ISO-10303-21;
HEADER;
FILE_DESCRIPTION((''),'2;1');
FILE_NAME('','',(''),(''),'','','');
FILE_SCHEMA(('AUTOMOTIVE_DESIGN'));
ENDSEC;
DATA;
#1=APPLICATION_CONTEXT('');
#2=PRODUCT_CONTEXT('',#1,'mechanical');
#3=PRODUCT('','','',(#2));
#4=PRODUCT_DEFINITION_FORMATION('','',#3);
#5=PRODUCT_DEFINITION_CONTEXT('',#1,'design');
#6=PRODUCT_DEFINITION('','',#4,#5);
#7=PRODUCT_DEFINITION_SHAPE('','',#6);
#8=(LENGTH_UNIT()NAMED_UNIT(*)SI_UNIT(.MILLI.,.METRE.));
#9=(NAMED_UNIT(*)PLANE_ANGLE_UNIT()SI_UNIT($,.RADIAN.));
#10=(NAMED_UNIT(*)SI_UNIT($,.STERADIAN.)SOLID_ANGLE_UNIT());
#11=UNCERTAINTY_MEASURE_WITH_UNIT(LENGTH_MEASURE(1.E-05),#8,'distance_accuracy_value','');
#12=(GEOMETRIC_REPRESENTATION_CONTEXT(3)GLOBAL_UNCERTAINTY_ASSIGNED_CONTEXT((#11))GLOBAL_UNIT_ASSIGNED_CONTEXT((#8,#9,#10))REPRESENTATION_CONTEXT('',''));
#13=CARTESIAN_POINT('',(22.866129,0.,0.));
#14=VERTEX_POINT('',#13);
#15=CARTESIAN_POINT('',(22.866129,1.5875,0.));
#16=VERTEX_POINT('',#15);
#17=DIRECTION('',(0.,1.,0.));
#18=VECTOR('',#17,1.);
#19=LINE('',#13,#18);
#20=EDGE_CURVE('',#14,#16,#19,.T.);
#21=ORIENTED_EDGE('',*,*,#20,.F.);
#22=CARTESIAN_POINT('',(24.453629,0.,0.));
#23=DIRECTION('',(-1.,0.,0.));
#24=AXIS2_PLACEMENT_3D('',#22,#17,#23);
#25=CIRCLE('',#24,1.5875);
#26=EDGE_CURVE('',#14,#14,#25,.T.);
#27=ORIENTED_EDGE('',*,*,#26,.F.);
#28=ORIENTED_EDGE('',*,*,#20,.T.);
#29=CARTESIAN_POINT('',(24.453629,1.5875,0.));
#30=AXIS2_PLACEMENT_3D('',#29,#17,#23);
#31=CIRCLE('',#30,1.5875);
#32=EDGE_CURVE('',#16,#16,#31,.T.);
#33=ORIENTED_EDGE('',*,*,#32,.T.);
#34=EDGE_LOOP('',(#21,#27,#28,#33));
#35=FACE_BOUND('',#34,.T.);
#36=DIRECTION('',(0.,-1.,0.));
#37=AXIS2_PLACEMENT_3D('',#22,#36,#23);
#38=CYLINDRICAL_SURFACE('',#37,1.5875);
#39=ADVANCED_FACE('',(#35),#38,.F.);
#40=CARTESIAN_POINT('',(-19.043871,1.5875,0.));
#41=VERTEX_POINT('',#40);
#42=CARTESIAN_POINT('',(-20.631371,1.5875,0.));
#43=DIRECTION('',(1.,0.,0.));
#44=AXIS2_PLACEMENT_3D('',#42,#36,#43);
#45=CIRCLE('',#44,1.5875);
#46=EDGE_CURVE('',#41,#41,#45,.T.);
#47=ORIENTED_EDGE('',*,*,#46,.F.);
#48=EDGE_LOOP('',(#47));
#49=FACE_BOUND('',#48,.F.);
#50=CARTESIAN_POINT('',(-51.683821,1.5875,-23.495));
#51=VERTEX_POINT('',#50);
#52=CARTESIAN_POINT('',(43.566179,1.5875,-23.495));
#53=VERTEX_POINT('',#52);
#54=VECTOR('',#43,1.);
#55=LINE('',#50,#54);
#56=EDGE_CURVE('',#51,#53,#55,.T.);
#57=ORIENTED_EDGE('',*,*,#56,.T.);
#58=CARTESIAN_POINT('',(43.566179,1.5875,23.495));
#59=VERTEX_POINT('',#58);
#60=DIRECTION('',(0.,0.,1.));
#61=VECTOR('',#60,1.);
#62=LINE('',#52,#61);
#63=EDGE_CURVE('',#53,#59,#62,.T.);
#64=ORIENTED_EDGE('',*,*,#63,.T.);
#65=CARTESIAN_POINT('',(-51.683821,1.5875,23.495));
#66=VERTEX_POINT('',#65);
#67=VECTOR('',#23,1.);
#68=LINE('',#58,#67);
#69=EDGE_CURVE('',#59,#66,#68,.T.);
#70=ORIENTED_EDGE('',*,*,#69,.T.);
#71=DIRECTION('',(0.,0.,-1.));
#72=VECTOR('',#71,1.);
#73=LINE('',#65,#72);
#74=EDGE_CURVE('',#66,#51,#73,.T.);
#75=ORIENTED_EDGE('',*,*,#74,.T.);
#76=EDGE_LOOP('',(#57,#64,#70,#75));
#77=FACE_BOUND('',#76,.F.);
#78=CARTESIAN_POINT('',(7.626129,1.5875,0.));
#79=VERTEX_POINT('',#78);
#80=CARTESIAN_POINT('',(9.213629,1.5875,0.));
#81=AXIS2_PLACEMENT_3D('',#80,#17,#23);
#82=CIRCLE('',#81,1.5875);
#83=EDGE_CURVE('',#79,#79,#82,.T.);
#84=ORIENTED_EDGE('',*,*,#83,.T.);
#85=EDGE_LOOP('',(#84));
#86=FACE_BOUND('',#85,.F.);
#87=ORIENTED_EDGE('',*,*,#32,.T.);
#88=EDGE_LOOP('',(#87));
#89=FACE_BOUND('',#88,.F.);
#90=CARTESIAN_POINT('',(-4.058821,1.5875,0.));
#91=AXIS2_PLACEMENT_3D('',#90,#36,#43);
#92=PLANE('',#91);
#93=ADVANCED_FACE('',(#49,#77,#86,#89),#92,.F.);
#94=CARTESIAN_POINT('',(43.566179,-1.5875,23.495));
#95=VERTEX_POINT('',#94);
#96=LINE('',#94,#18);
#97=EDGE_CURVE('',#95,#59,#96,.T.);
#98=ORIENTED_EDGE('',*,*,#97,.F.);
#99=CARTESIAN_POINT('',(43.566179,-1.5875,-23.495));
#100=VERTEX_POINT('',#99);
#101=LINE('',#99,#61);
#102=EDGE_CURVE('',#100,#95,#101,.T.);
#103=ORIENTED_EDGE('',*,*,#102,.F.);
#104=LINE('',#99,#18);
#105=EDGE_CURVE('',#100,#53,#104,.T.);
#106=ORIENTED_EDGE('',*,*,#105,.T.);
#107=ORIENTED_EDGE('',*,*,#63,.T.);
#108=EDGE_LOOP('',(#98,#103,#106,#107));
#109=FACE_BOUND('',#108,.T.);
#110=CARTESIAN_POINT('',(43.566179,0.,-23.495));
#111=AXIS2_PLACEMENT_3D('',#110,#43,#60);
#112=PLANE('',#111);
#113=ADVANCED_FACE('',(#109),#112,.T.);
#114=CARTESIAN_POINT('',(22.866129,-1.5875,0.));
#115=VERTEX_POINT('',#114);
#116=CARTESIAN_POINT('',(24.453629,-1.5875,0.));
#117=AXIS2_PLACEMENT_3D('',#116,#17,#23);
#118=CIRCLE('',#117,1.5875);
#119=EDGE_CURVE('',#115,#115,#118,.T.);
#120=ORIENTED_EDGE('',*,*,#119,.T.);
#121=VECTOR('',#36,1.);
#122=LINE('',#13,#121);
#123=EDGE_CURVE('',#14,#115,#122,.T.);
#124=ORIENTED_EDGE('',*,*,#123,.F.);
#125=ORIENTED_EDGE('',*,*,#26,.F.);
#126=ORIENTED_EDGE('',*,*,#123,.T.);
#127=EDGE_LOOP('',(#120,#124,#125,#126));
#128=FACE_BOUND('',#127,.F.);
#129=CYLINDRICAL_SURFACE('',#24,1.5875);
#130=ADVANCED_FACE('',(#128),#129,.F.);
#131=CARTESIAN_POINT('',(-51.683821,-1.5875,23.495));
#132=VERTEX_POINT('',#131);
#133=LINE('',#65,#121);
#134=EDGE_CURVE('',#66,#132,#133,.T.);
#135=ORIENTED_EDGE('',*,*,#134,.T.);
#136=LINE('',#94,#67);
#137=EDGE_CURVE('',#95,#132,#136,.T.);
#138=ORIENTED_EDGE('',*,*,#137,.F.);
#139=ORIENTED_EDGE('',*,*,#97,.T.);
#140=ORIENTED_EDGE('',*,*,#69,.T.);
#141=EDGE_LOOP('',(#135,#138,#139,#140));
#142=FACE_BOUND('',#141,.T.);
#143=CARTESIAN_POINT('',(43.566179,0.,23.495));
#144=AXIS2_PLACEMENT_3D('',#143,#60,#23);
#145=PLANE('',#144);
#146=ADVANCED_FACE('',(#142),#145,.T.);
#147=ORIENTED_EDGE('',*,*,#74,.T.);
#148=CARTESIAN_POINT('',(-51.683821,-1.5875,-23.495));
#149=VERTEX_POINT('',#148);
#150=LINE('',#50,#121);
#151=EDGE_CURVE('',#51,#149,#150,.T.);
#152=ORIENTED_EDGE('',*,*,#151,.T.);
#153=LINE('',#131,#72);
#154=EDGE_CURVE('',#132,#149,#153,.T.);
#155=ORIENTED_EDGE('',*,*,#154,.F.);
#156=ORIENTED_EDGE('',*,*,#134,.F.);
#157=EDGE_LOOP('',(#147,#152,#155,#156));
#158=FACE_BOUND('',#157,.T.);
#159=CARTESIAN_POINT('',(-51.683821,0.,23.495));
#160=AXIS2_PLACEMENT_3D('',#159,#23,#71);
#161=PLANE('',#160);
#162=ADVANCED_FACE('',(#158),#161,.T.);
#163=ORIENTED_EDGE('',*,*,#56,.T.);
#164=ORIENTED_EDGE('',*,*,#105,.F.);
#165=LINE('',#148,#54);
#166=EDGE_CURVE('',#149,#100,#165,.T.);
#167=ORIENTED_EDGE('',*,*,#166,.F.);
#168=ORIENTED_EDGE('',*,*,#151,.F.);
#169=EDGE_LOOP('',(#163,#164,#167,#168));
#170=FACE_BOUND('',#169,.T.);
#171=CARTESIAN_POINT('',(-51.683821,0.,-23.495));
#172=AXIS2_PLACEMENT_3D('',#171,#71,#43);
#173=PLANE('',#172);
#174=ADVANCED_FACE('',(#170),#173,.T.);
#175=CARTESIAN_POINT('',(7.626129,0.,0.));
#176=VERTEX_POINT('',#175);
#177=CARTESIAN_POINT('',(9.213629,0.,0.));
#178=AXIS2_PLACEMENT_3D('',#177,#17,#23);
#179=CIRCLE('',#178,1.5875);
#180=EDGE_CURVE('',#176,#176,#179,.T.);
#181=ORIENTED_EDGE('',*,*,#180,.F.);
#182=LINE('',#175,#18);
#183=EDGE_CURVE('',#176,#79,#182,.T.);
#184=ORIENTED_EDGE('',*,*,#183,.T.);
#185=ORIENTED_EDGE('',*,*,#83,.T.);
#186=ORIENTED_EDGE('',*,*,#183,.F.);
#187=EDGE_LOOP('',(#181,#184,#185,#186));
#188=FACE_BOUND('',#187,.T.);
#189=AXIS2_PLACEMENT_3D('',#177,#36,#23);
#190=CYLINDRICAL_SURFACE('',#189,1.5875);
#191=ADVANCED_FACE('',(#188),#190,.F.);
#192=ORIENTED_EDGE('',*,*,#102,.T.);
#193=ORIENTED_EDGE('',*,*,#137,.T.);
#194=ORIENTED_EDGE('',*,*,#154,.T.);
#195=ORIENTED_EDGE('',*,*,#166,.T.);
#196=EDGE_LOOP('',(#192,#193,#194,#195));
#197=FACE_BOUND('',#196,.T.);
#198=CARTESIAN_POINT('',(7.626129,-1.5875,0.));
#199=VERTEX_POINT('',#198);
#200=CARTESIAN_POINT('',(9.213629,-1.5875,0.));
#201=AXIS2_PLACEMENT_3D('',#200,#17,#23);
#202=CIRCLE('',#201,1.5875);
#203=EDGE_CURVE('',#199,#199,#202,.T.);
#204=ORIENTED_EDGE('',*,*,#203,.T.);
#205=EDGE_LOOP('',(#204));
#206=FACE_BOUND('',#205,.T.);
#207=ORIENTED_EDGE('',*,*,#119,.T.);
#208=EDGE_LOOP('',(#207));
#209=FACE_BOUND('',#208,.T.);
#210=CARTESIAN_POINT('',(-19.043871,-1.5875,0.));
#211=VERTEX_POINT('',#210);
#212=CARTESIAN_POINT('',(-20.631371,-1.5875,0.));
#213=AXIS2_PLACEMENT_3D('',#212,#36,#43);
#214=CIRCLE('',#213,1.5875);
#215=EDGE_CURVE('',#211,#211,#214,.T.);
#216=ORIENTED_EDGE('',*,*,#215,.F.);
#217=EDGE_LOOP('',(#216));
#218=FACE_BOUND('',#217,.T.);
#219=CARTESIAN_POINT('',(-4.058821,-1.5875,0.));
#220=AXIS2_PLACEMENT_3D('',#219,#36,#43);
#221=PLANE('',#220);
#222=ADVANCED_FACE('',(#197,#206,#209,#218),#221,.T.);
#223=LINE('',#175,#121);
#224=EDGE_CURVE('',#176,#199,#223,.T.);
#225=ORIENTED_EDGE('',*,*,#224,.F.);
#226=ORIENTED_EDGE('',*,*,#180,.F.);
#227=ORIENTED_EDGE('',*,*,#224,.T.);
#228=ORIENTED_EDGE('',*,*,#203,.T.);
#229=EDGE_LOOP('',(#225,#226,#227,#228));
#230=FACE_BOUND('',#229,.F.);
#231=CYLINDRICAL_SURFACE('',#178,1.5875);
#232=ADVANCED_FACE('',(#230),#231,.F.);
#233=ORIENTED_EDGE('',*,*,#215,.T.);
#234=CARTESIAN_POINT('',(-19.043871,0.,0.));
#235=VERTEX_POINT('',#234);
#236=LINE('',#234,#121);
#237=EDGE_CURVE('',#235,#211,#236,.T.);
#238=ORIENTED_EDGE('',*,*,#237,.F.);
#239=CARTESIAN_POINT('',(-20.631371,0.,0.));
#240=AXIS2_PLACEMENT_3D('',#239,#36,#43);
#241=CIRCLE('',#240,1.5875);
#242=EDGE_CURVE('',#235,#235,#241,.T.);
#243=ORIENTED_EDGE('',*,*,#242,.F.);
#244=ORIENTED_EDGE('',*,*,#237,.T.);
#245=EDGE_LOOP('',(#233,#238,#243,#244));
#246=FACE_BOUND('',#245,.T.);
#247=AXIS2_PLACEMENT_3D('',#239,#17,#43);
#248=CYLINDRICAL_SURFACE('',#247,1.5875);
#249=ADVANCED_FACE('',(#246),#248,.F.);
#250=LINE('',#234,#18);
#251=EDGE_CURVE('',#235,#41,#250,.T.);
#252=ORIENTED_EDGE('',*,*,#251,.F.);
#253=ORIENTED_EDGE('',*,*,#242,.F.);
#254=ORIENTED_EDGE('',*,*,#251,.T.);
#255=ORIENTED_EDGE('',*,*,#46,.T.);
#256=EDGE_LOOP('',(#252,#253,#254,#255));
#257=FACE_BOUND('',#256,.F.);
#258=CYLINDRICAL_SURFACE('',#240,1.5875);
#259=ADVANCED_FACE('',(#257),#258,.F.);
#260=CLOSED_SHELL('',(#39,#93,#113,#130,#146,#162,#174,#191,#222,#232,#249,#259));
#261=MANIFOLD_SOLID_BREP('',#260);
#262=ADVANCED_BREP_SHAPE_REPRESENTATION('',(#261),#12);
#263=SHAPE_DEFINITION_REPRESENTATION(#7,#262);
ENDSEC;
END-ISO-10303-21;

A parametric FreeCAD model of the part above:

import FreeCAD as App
import Part
import Sketcher
from FreeCAD import Vector
Q = App.Units.Quantity


def add_polygon(sketch, points):
    """Adds a closed chain of lines whose ends are joined by coincident constraints."""
    first, n = sketch.GeometryCount, len(points)
    for a, b in zip(points, points[1:] + points[:1]):
        sketch.addGeometry(Part.LineSegment(App.Vector(*a, 0), App.Vector(*b, 0)), False)
    for i in range(n):
        sketch.addConstraint(Sketcher.Constraint("Coincident", first + i, 2, first + (i + 1) % n, 1))

doc = App.newDocument("Part")
params = doc.addObject("Spreadsheet::Sheet", "Params")
for row, (alias, value) in enumerate([
    ("sketch1_diameter", "0.125 in"),
    ("sketch1_width", "3.75 in"),
    ("sketch1_height", "1.85 in"),
    ("pad1_length", "0.125 in"),
], start=1):
    params.set(f"A{row}", alias)
    params.set(f"B{row}", "=" + value)
    params.setAlias(f"B{row}", alias)

body = doc.addObject("PartDesign::Body", "Body")

# Sketch on XZ plane
sketch1 = body.newObject("Sketcher::SketchObject", "Sketch")
sketch1.AttachmentSupport = (doc.getObject("XZ_Plane"), [""])
sketch1.MapMode = "FlatFace"
add_polygon(sketch1, [(43.566179, 23.495), (-51.683821, 23.495), (-51.683821, -23.495), (43.566179, -23.495)])  # lines 0-3
sketch1.addGeometry(Part.Circle(Vector(-20.631371, 0, 0), Vector(0, 0, 1), 1.5875), False)  # 4
sketch1.addGeometry(Part.Circle(Vector(9.213629, 0, 0), Vector(0, 0, 1), 1.5875), False)  # 5
sketch1.addGeometry(Part.Circle(Vector(24.453629, 0, 0), Vector(0, 0, 1), 1.5875), False)  # 6
sketch1.addConstraint(Sketcher.Constraint("Horizontal", 0))
sketch1.addConstraint(Sketcher.Constraint("Vertical", 1))
sketch1.addConstraint(Sketcher.Constraint("Horizontal", 2))
sketch1.addConstraint(Sketcher.Constraint("Vertical", 3))
sketch1.addConstraint(Sketcher.Constraint("Equal", 4, 5))
sketch1.addConstraint(Sketcher.Constraint("Equal", 5, 6))
sketch1.addConstraint(Sketcher.Constraint("PointOnObject", 4, 3, -1))
sketch1.addConstraint(Sketcher.Constraint("PointOnObject", 5, 3, -1))
sketch1.addConstraint(Sketcher.Constraint("PointOnObject", 6, 3, -1))
sketch1.addConstraint(Sketcher.Constraint("Diameter", 4, Q("0.125 in")))
sketch1.addConstraint(Sketcher.Constraint("DistanceX", 0, 2, 0, 1, Q("3.75 in")))
sketch1.addConstraint(Sketcher.Constraint("DistanceY", 1, 2, 1, 1, Q("1.85 in")))
sketch1.addConstraint(Sketcher.Constraint("DistanceX", 5, 3, 6, 3, Q("0.6 in")))
sketch1.addConstraint(Sketcher.Constraint("DistanceY", -1, 1, 0, 2, Q("0.925 in")))
sketch1.addConstraint(Sketcher.Constraint("DistanceX", 4, 3, 5, 3, Q("1.175 in")))
sketch1.addConstraint(Sketcher.Constraint("DistanceX", 4, 3, -1, 1, 20.631371))
sketch1.addConstraint(Sketcher.Constraint("DistanceX", 0, 2, -1, 1, 51.683821))
sketch1.setExpression("Constraints[13]", "Params.sketch1_diameter")
sketch1.setExpression("Constraints[14]", "Params.sketch1_width")
sketch1.setExpression("Constraints[15]", "Params.sketch1_height")
pad1 = body.newObject("PartDesign::Pad", "Pad")
pad1.Profile = sketch1
pad1.setExpression("Length", "Params.pad1_length")
pad1.Midplane = True

doc.recompute()
